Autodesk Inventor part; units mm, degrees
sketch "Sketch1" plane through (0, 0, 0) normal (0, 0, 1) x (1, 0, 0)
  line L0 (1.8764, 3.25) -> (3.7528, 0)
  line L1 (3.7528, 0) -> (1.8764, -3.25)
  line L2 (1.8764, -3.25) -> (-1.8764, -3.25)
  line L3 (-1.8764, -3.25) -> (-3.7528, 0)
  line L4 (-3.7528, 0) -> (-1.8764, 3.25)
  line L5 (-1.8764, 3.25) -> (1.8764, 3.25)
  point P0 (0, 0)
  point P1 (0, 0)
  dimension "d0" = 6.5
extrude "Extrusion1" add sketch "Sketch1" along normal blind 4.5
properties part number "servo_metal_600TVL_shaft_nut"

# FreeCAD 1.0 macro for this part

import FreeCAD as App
import Part
import Sketcher

V = App.Vector
Q = App.Units.Quantity


def add_polygon(sketch, points):
    """Adds a closed chain of lines whose ends are joined by coincident constraints."""
    first, n = sketch.GeometryCount, len(points)
    for a, b in zip(points, points[1:] + points[:1]):
        sketch.addGeometry(Part.LineSegment(App.Vector(*a, 0), App.Vector(*b, 0)), False)
    for i in range(n):
        sketch.addConstraint(Sketcher.Constraint("Coincident", first + i, 2, first + (i + 1) % n, 1))

doc = App.newDocument("Part")
params = doc.addObject("Spreadsheet::Sheet", "Params")
for row, (alias, value) in enumerate([
    ("pad1_length", "4.5 mm"),
], start=1):
    params.set(f"A{row}", alias)
    params.set(f"B{row}", "=" + value)
    params.setAlias(f"B{row}", alias)

body = doc.addObject("PartDesign::Body", "Body")

# Sketch on XY plane
sketch1 = doc.addObject("Sketcher::SketchObject", "Sketch")
body.addObject(sketch1)
sketch1.AttachmentSupport = (doc.XY_Plane, [""])
sketch1.MapMode = "FlatFace"
add_polygon(sketch1, [(3.8, 0), (1.9, 3.2), (-1.9, 3.2), (-3.8, 0), (-1.9, -3.2), (1.9, -3.2)])  # lines 0-5
sketch1.addConstraint([
    Sketcher.Constraint("Horizontal", 1),
    Sketcher.Constraint("Horizontal", 4),
    Sketcher.Constraint("Symmetric", 0, 2, 3, 2, -1, 1),
    Sketcher.Constraint("Symmetric", 2, 2, 5, 2, -1, 1),
    Sketcher.Constraint("PointOnObject", 2, 2, -1),
    Sketcher.Constraint("Parallel", 2, 5),
    Sketcher.Constraint("Vertical", 1, 2, 3, 2),
    Sketcher.Constraint("DistanceY", 3, 2, 1, 2, 6.5),
    Sketcher.Constraint("Angle", 0, Q("120.0002 deg")),
    Sketcher.Constraint("DistanceX", 1, 2, 1, 1, 3.7528),
])
pad1 = doc.addObject("PartDesign::Pad", "Pad")
body.addObject(pad1)
pad1.Profile = sketch1
pad1.setExpression("Length", "Params.pad1_length")

doc.recompute()
